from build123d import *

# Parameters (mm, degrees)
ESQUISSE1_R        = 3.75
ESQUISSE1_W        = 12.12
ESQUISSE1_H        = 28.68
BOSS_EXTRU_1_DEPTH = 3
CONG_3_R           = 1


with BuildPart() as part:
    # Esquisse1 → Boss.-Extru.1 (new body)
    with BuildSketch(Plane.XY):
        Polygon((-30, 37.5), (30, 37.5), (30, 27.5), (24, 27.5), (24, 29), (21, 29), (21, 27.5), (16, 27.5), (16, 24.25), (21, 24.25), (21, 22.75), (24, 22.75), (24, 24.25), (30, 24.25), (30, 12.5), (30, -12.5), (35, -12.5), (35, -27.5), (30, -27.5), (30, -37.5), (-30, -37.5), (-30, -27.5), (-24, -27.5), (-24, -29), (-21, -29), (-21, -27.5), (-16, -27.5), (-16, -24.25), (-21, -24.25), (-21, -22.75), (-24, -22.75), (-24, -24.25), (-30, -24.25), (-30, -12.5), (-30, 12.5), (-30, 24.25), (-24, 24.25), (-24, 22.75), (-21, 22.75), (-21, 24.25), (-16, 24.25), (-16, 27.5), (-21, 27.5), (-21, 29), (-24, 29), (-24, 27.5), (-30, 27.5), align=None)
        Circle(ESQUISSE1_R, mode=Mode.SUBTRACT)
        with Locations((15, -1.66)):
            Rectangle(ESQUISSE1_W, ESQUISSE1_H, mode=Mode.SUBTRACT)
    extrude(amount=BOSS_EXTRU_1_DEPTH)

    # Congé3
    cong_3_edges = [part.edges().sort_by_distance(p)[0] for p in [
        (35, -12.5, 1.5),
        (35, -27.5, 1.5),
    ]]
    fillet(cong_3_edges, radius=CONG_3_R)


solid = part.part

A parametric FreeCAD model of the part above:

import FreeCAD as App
import Part
import Sketcher

V = App.Vector
Q = App.Units.Quantity


def edges_at(feature, points):
    """Names of the edges that pass closest to the given points."""
    edges = feature.Shape.Edges
    near = lambda p: min(range(len(edges)), key=lambda i: edges[i].distToShape(Part.Vertex(*p))[0])
    return sorted({f"Edge{near(p) + 1}" for p in points})


def add_polygon(sketch, points):
    """Adds a closed chain of lines whose ends are joined by coincident constraints."""
    first, n = sketch.GeometryCount, len(points)
    for a, b in zip(points, points[1:] + points[:1]):
        sketch.addGeometry(Part.LineSegment(App.Vector(*a, 0), App.Vector(*b, 0)), False)
    for i in range(n):
        sketch.addConstraint(Sketcher.Constraint("Coincident", first + i, 2, first + (i + 1) % n, 1))

doc = App.newDocument("Part")
body = doc.addObject("PartDesign::Body", "Body")

sketch1 = doc.addObject("Sketcher::SketchObject", "Sketch")
body.addObject(sketch1)
sketch1.AttachmentSupport = (doc.XY_Plane, [""])
sketch1.MapMode = "FlatFace"
add_polygon(sketch1, [(30, 37.5), (-30, 37.5), (-30, 27.5), (-24, 27.5), (-24, 29), (-21, 29), (-21, 27.5), (-16, 27.5), (-16, 24.25), (-21, 24.25), (-21, 22.75), (-24, 22.75), (-24, 24.25), (-30, 24.25), (-30, -24.25), (-24, -24.25), (-24, -22.75), (-21, -22.75), (-21, -24.25), (-16, -24.25), (-16, -27.5), (-21, -27.5), (-21, -29), (-24, -29), (-24, -27.5), (-30, -27.5), (-30, -37.5), (30, -37.5), (30, -27.5), (35, -27.5), (35, -12.5), (30, -12.5), (30, 24.25), (24, 24.25), (24, 22.75), (21, 22.75), (21, 24.25), (16, 24.25), (16, 27.5), (21, 27.5), (21, 29), (24, 29), (24, 27.5), (30, 27.5)])
add_polygon(sketch1, [(8.94, -16), (8.94, 12.68), (21.06, 12.68), (21.06, -16)])
sketch1.addGeometry(Part.Circle(V(0, 0, 0), V(0, 0, 1), 3.75), False)
sketch1.addConstraint(Sketcher.Constraint("Horizontal", 0))
sketch1.addConstraint(Sketcher.Constraint("Vertical", 1))
sketch1.addConstraint(Sketcher.Constraint("Horizontal", 2))
sketch1.addConstraint(Sketcher.Constraint("Vertical", 3))
sketch1.addConstraint(Sketcher.Constraint("Horizontal", 4))
sketch1.addConstraint(Sketcher.Constraint("Vertical", 5))
sketch1.addConstraint(Sketcher.Constraint("Horizontal", 6))
sketch1.addConstraint(Sketcher.Constraint("Vertical", 7))
sketch1.addConstraint(Sketcher.Constraint("Horizontal", 8))
sketch1.addConstraint(Sketcher.Constraint("Vertical", 9))
sketch1.addConstraint(Sketcher.Constraint("Horizontal", 10))
sketch1.addConstraint(Sketcher.Constraint("Vertical", 11))
sketch1.addConstraint(Sketcher.Constraint("Horizontal", 12))
sketch1.addConstraint(Sketcher.Constraint("Vertical", 13))
sketch1.addConstraint(Sketcher.Constraint("Horizontal", 14))
sketch1.addConstraint(Sketcher.Constraint("Vertical", 15))
sketch1.addConstraint(Sketcher.Constraint("Horizontal", 16))
sketch1.addConstraint(Sketcher.Constraint("Vertical", 17))
sketch1.addConstraint(Sketcher.Constraint("Horizontal", 18))
sketch1.addConstraint(Sketcher.Constraint("Vertical", 19))
sketch1.addConstraint(Sketcher.Constraint("Horizontal", 20))
sketch1.addConstraint(Sketcher.Constraint("Vertical", 21))
sketch1.addConstraint(Sketcher.Constraint("Horizontal", 22))
sketch1.addConstraint(Sketcher.Constraint("Vertical", 23))
sketch1.addConstraint(Sketcher.Constraint("Horizontal", 24))
sketch1.addConstraint(Sketcher.Constraint("Vertical", 25))
sketch1.addConstraint(Sketcher.Constraint("Horizontal", 26))
sketch1.addConstraint(Sketcher.Constraint("Vertical", 27))
sketch1.addConstraint(Sketcher.Constraint("Horizontal", 28))
sketch1.addConstraint(Sketcher.Constraint("Vertical", 29))
sketch1.addConstraint(Sketcher.Constraint("Horizontal", 30))
sketch1.addConstraint(Sketcher.Constraint("Vertical", 31))
sketch1.addConstraint(Sketcher.Constraint("Horizontal", 32))
sketch1.addConstraint(Sketcher.Constraint("Vertical", 33))
sketch1.addConstraint(Sketcher.Constraint("Horizontal", 34))
sketch1.addConstraint(Sketcher.Constraint("Vertical", 35))
sketch1.addConstraint(Sketcher.Constraint("Horizontal", 36))
sketch1.addConstraint(Sketcher.Constraint("Vertical", 37))
sketch1.addConstraint(Sketcher.Constraint("Horizontal", 38))
sketch1.addConstraint(Sketcher.Constraint("Vertical", 39))
sketch1.addConstraint(Sketcher.Constraint("Horizontal", 40))
sketch1.addConstraint(Sketcher.Constraint("Vertical", 41))
sketch1.addConstraint(Sketcher.Constraint("Horizontal", 42))
sketch1.addConstraint(Sketcher.Constraint("Vertical", 43))
sketch1.addConstraint(Sketcher.Constraint("Vertical", 44))
sketch1.addConstraint(Sketcher.Constraint("Horizontal", 45))
sketch1.addConstraint(Sketcher.Constraint("Vertical", 46))
sketch1.addConstraint(Sketcher.Constraint("Horizontal", 47))
sketch1.addConstraint(Sketcher.Constraint("Coincident", 48, 3, -1, 1))
sketch1.addConstraint(Sketcher.Constraint("Symmetric", 0, 2, 26, 2, -1, 1))
sketch1.addConstraint(Sketcher.Constraint("Symmetric", 13, 2, 31, 2, -1, 1))
sketch1.addConstraint(Sketcher.Constraint("Symmetric", 15, 2, 33, 2, -1, 1))
sketch1.addConstraint(Sketcher.Constraint("Symmetric", 17, 2, 35, 2, -1, 1))
sketch1.addConstraint(Sketcher.Constraint("Symmetric", 19, 2, 37, 2, -1, 1))
sketch1.addConstraint(Sketcher.Constraint("Symmetric", 21, 2, 39, 2, -1, 1))
sketch1.addConstraint(Sketcher.Constraint("Symmetric", 23, 2, 41, 2, -1, 1))
sketch1.addConstraint(Sketcher.Constraint("Symmetric", 24, 2, 27, 2, -2))
sketch1.addConstraint(Sketcher.Constraint("Symmetric", 11, 2, 32, 2, -2))
sketch1.addConstraint(Sketcher.Constraint("Symmetric", 9, 2, 34, 2, -2))
sketch1.addConstraint(Sketcher.Constraint("Symmetric", 7, 2, 36, 2, -2))
sketch1.addConstraint(Sketcher.Constraint("Symmetric", 5, 2, 38, 2, -2))
sketch1.addConstraint(Sketcher.Constraint("Symmetric", 3, 2, 40, 2, -2))
sketch1.addConstraint(Sketcher.Constraint("Symmetric", 1, 2, 42, 2, -2))
sketch1.addConstraint(Sketcher.Constraint("Horizontal", 2, 2, 5, 2))
sketch1.addConstraint(Sketcher.Constraint("Horizontal", 8, 2, 11, 2))
sketch1.addConstraint(Sketcher.Constraint("Vertical", 5, 2, 8, 2))
sketch1.addConstraint(Sketcher.Constraint("Vertical", 3, 2, 10, 2))
sketch1.addConstraint(Sketcher.Constraint("Vertical", 1, 2, 12, 2))
sketch1.addConstraint(Sketcher.Constraint("Equal", 20, 28))
sketch1.addConstraint(Sketcher.Constraint("Equal", 5, 9))
sketch1.addConstraint(Sketcher.Constraint("Diameter", 48, Q("7.5 mm")))
sketch1.addConstraint(Sketcher.Constraint("DistanceX", 0, 2, 0, 1, Q("60 mm")))
sketch1.addConstraint(Sketcher.Constraint("DistanceX", 2, 1, 2, 2, Q("6 mm")))
sketch1.addConstraint(Sketcher.Constraint("DistanceX", 4, 1, 4, 2, Q("3 mm")))
sketch1.addConstraint(Sketcher.Constraint("DistanceX", 6, 1, 6, 2, Q("5 mm")))
sketch1.addConstraint(Sketcher.Constraint("DistanceY", 1, 2, 1, 1, Q("10 mm")))
sketch1.addConstraint(Sketcher.Constraint("DistanceY", 29, 1, 29, 2, Q("15 mm")))
sketch1.addConstraint(Sketcher.Constraint("DistanceY", 3, 1, 3, 2, Q("1.5 mm")))
sketch1.addConstraint(Sketcher.Constraint("DistanceY", 13, 2, 13, 1, Q("48.5 mm")))
sketch1.addConstraint(Sketcher.Constraint("DistanceY", -1, 1, 3, 2, Q("29 mm")))
sketch1.addConstraint(Sketcher.Constraint("DistanceY", 46, 2, -1, 1, Q("16 mm")))
sketch1.addConstraint(Sketcher.Constraint("DistanceX", 45, 1, 45, 2, Q("12.12 mm")))
sketch1.addConstraint(Sketcher.Constraint("DistanceY", 44, 1, 44, 2, Q("28.68 mm")))
sketch1.addConstraint(Sketcher.Constraint("DistanceX", -1, 1, 44, 2, Q("8.94 mm")))
pad1 = doc.addObject("PartDesign::Pad", "Pad")
body.addObject(pad1)
pad1.Profile = sketch1
pad1.Length = 3
doc.recompute()

fillet = doc.addObject("PartDesign::Fillet", "Fillet")
body.addObject(fillet)
fillet.Base = (pad1, edges_at(pad1, [(35, -12.5, 1.5), (35, -27.5, 1.5)]))
fillet.Radius = 1

doc.recompute()
